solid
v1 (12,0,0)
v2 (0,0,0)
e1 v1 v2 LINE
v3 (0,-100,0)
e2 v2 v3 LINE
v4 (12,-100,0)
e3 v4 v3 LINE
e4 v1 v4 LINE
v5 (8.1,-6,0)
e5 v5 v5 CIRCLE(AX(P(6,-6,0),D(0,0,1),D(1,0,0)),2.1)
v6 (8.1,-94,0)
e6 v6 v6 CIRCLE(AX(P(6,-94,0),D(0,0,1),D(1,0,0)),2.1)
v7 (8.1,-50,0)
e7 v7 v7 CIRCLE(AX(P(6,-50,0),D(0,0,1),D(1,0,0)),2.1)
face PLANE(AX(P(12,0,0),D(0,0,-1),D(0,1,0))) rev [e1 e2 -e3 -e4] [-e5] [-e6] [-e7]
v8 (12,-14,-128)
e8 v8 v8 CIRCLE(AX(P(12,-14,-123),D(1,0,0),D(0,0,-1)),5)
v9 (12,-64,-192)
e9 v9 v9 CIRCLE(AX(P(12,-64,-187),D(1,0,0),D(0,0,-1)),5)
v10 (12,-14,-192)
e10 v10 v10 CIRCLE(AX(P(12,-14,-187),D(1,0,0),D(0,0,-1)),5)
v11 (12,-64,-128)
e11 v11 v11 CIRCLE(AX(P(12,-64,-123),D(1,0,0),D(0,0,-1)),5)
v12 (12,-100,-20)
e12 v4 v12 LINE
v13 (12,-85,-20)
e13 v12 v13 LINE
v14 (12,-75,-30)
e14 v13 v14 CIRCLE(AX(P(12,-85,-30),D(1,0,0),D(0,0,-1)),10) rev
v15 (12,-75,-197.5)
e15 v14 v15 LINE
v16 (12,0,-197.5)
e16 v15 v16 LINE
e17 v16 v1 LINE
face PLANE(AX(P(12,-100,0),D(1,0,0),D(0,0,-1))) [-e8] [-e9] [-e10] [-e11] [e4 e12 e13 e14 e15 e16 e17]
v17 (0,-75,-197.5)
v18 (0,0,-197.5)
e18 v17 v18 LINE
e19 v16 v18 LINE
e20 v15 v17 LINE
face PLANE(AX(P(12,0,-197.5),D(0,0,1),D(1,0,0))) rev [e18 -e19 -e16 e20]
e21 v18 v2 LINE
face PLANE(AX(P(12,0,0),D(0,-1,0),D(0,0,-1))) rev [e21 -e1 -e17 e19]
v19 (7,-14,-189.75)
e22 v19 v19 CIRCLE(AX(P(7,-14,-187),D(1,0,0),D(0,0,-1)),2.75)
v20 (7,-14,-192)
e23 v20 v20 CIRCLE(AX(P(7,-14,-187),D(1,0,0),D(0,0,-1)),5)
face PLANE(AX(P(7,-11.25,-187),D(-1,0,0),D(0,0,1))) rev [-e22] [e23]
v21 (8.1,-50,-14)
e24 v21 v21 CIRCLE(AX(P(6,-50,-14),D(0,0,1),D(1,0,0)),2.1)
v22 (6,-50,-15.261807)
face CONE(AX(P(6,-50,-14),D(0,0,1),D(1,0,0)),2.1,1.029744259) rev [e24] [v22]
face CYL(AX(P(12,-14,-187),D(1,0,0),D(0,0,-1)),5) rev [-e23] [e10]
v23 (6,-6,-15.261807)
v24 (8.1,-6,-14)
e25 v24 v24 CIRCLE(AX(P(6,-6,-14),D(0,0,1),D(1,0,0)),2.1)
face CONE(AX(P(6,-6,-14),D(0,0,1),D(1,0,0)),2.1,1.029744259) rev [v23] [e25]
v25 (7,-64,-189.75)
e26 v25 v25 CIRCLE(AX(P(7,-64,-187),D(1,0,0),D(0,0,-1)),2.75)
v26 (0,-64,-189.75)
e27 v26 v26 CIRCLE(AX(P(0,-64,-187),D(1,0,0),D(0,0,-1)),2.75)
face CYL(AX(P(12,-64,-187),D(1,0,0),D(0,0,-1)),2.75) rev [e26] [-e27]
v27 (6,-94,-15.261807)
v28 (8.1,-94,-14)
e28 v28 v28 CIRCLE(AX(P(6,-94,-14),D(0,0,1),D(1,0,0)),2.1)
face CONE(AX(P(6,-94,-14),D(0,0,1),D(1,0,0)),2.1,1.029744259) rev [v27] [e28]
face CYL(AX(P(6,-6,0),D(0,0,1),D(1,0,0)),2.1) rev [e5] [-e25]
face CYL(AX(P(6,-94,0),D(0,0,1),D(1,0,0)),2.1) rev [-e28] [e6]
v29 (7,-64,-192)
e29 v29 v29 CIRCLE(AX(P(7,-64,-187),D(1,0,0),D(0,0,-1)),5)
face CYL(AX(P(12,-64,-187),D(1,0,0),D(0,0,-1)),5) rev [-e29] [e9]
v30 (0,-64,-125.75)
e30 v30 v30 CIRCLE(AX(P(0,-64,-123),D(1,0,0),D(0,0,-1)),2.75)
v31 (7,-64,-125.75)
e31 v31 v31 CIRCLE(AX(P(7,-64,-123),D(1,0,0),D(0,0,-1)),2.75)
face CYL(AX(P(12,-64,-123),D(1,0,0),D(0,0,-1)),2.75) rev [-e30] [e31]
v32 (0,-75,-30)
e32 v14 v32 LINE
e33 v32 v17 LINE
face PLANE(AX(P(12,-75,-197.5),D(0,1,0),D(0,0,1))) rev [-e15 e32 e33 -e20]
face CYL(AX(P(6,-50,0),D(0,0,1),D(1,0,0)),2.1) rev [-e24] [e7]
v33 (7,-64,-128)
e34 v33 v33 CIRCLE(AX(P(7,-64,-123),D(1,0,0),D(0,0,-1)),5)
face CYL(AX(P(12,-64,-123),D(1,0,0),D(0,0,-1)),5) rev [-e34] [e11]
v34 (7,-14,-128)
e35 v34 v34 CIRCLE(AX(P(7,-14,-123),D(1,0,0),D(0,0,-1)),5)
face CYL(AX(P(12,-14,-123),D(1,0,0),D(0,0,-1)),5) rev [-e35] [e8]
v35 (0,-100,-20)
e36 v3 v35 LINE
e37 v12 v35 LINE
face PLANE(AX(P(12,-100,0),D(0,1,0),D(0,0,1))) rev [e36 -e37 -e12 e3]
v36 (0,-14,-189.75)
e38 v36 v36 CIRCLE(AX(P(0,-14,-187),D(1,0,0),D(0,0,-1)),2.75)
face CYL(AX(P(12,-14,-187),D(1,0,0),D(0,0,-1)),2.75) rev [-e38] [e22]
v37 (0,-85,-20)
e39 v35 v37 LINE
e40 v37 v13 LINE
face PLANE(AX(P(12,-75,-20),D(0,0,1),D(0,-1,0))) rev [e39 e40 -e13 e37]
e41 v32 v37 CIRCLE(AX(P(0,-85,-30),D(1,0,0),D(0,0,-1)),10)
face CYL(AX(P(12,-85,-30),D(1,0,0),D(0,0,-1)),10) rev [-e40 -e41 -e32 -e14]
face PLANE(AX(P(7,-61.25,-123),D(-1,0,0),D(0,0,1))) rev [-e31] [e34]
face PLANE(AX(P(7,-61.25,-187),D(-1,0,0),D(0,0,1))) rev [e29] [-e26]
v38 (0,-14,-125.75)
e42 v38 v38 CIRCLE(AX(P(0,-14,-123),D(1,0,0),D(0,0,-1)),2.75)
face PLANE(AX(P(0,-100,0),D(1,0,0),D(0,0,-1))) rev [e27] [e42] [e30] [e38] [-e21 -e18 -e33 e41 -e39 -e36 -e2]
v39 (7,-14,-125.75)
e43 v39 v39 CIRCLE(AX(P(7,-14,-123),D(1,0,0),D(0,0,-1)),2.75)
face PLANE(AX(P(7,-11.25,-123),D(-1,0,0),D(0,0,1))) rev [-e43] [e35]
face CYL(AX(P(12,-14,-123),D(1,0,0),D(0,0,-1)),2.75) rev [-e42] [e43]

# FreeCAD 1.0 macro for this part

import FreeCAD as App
import Part
import Sketcher

V = App.Vector
Q = App.Units.Quantity


def edges_at(feature, points):
    """Names of the edges that pass closest to the given points."""
    edges = feature.Shape.Edges
    near = lambda p: min(range(len(edges)), key=lambda i: edges[i].distToShape(Part.Vertex(*p))[0])
    return sorted({f"Edge{near(p) + 1}" for p in points})


def add_polygon(sketch, points):
    """Adds a closed chain of lines whose ends are joined by coincident constraints."""
    first, n = sketch.GeometryCount, len(points)
    for a, b in zip(points, points[1:] + points[:1]):
        sketch.addGeometry(Part.LineSegment(App.Vector(*a, 0), App.Vector(*b, 0)), False)
    for i in range(n):
        sketch.addConstraint(Sketcher.Constraint("Coincident", first + i, 2, first + (i + 1) % n, 1))

doc = App.newDocument("Part")
body = doc.addObject("PartDesign::Body", "Body")

# Sketch on YZ plane
sketch1 = body.newObject("Sketcher::SketchObject", "Sketch")
sketch1.AttachmentSupport = (doc.getObject("YZ_Plane"), [""])
sketch1.MapMode = "FlatFace"
add_polygon(sketch1, [(0, -197.5), (0, 0), (-100, 0), (-100, -20), (-75, -20), (-75, -197.5)])  # lines 0-5
sketch1.addConstraint(Sketcher.Constraint("Vertical", 0))
sketch1.addConstraint(Sketcher.Constraint("Horizontal", 1))
sketch1.addConstraint(Sketcher.Constraint("Vertical", 2))
sketch1.addConstraint(Sketcher.Constraint("Horizontal", 3))
sketch1.addConstraint(Sketcher.Constraint("Vertical", 4))
sketch1.addConstraint(Sketcher.Constraint("Horizontal", 5))
sketch1.addConstraint(Sketcher.Constraint("Coincident", 0, 2, -1, 1))
sketch1.addConstraint(Sketcher.Constraint("DistanceX", 1, 2, 1, 1, Q("100 mm")))
sketch1.addConstraint(Sketcher.Constraint("DistanceX", 3, 1, 3, 2, Q("25 mm")))
sketch1.addConstraint(Sketcher.Constraint("DistanceY", 2, 2, 2, 1, Q("20 mm")))
sketch1.addConstraint(Sketcher.Constraint("DistanceY", 0, 1, 0, 2, Q("197.5 mm")))
pad1 = body.newObject("PartDesign::Pad", "Pad")
pad1.Profile = sketch1
pad1.Length = 12
doc.recompute()

fillet = body.newObject("PartDesign::Fillet", "Fillet")
fillet.Base = (pad1, edges_at(pad1, [(6, -75, -20)]))
fillet.Radius = 10

# Sketch on XY plane
sketch2 = body.newObject("Sketcher::SketchObject", "Sketch001")
sketch2.AttachmentSupport = (doc.getObject("XY_Plane"), [""])
sketch2.MapMode = "FlatFace"
sketch2.addGeometry(Part.Circle(V(6, -6, 0), V(0, 0, 1), 2.1), False)
sketch2.addGeometry(Part.Circle(V(6, -50, 0), V(0, 0, 1), 2.1), False)
sketch2.addGeometry(Part.Circle(V(6, -94, 0), V(0, 0, 1), 2.1), False)
sketch2.addConstraint(Sketcher.Constraint("Equal", 0, 1))
sketch2.addConstraint(Sketcher.Constraint("Equal", 1, 2))
sketch2.addConstraint(Sketcher.Constraint("Vertical", 0, 3, 1, 3))
sketch2.addConstraint(Sketcher.Constraint("Vertical", 1, 3, 2, 3))
sketch2.addConstraint(Sketcher.Constraint("Diameter", 0, Q("4.2 mm")))
sketch2.addConstraint(Sketcher.Constraint("DistanceX", -1, 1, 0, 3, Q("6 mm")))
sketch2.addConstraint(Sketcher.Constraint("DistanceY", 0, 3, -1, 1, Q("6 mm")))
sketch2.addConstraint(Sketcher.Constraint("DistanceY", 1, 3, -1, 1, Q("50 mm")))
sketch2.addConstraint(Sketcher.Constraint("DistanceY", 2, 3, -1, 1, Q("94 mm")))
doc.recompute()
hole = body.newObject("PartDesign::Hole", "Hole")
hole.Profile = sketch2
hole.ThreadType = "None"
hole.Diameter = 4.2
hole.DepthType = "Dimension"
hole.Depth = 14
hole.DrillPoint = "Angled"
hole.DrillPointAngle = 118

# Sketch on YZ plane
sketch3 = body.newObject("Sketcher::SketchObject", "Sketch002")
sketch3.AttachmentSupport = (doc.getObject("YZ_Plane"), [""])
sketch3.MapMode = "FlatFace"
sketch3.AttachmentOffset = App.Placement(V(0, 0, 12), App.Rotation())
sketch3.addGeometry(Part.Circle(V(-14, -123, 0), V(0, 0, 1), 2.75), False)
sketch3.addGeometry(Part.Circle(V(-64, -123, 0), V(0, 0, 1), 2.75), False)
sketch3.addGeometry(Part.Circle(V(-64, -187, 0), V(0, 0, 1), 2.75), False)
sketch3.addGeometry(Part.Circle(V(-14, -187, 0), V(0, 0, 1), 2.75), False)
sketch3.addConstraint(Sketcher.Constraint("Equal", 0, 1))
sketch3.addConstraint(Sketcher.Constraint("Equal", 1, 2))
sketch3.addConstraint(Sketcher.Constraint("Equal", 2, 3))
sketch3.addConstraint(Sketcher.Constraint("Horizontal", 0, 3, 1, 3))
sketch3.addConstraint(Sketcher.Constraint("Horizontal", 2, 3, 3, 3))
sketch3.addConstraint(Sketcher.Constraint("Vertical", 1, 3, 2, 3))
sketch3.addConstraint(Sketcher.Constraint("Vertical", 0, 3, 3, 3))
sketch3.addConstraint(Sketcher.Constraint("Diameter", 0, Q("5.5 mm")))
sketch3.addConstraint(Sketcher.Constraint("DistanceX", 0, 3, -1, 1, Q("14 mm")))
sketch3.addConstraint(Sketcher.Constraint("DistanceY", 0, 3, -1, 1, Q("123 mm")))
sketch3.addConstraint(Sketcher.Constraint("DistanceX", 1, 3, -1, 1, Q("64 mm")))
sketch3.addConstraint(Sketcher.Constraint("DistanceY", 2, 3, -1, 1, Q("187 mm")))
doc.recompute()
hole2 = body.newObject("PartDesign::Hole", "Hole001")
hole2.Profile = sketch3
hole2.ThreadType = "None"
hole2.Diameter = 5.5
hole2.DepthType = "ThroughAll"
hole2.HoleCutType = "Counterbore"
hole2.HoleCutDiameter = 10
hole2.HoleCutDepth = 5

doc.recompute()
